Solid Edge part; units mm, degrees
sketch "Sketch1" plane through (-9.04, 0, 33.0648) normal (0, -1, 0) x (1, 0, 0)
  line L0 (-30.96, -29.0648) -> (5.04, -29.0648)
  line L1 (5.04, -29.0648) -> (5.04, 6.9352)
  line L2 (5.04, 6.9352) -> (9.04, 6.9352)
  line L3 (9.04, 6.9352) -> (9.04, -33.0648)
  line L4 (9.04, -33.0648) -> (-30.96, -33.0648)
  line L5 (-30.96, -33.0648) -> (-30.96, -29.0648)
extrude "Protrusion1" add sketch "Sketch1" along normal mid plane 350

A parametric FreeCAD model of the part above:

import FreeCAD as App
import Part
import Sketcher
from FreeCAD import Vector
Q = App.Units.Quantity

doc = App.newDocument("Part")
params = doc.addObject("Spreadsheet::Sheet", "Params")
for row, (alias, value) in enumerate([
    ("sketch1_width", "36 mm"),
    ("sketch1_width2", "40 mm"),
    ("pad1_length", "350 mm"),
], start=1):
    params.set(f"A{row}", alias)
    params.set(f"B{row}", "=" + value)
    params.setAlias(f"B{row}", alias)

body = doc.addObject("PartDesign::Body", "Body")

# Sketch on XZ plane
sketch1 = body.newObject("Sketcher::SketchObject", "Sketch")
sketch1.AttachmentSupport = (doc.getObject("XZ_Plane"), [""])
sketch1.MapMode = "FlatFace"
sketch1.addGeometry([
    Part.LineSegment(Vector(-4, 4, 0), Vector(-40, 4, 0)),  # 0
    Part.LineSegment(Vector(-40, 4, 0), Vector(-40, 0, 0)),  # 1
    Part.LineSegment(Vector(-40, 0, 0), Vector(0, 0, 0)),  # 2
    Part.LineSegment(Vector(0, 0, 0), Vector(0, 40, 0)),  # 3
    Part.LineSegment(Vector(0, 40, 0), Vector(-4, 40, 0)),  # 4
    Part.LineSegment(Vector(-4, 40, 0), Vector(-4, 4, 0)),  # 5
], False)
sketch1.addConstraint([
    Sketcher.Constraint("Coincident", 0, 2, 1, 1),
    Sketcher.Constraint("Coincident", 1, 2, 2, 1),
    Sketcher.Constraint("Coincident", 2, 2, 3, 1),
    Sketcher.Constraint("Coincident", 3, 2, 4, 1),
    Sketcher.Constraint("Coincident", 4, 2, 5, 1),
    Sketcher.Constraint("Coincident", 5, 2, 0, 1),
    Sketcher.Constraint("Horizontal", 0),
    Sketcher.Constraint("Vertical", 1),
    Sketcher.Constraint("Horizontal", 2),
    Sketcher.Constraint("Vertical", 3),
    Sketcher.Constraint("Horizontal", 4),
    Sketcher.Constraint("Vertical", 5),
    Sketcher.Constraint("Coincident", 2, 2, -1, 1),
    Sketcher.Constraint("Equal", 4, 1),
    Sketcher.Constraint("Equal", 2, 3),
    Sketcher.Constraint("DistanceX", 0, 2, 0, 1, Q("36 mm")),
    Sketcher.Constraint("DistanceX", 2, 1, 2, 2, Q("40 mm")),
])
sketch1.setExpression("Constraints[15]", "Params.sketch1_width")
sketch1.setExpression("Constraints[16]", "Params.sketch1_width2")
pad1 = body.newObject("PartDesign::Pad", "Pad")
pad1.Profile = sketch1
pad1.setExpression("Length", "Params.pad1_length")
pad1.Midplane = True

doc.recompute()
